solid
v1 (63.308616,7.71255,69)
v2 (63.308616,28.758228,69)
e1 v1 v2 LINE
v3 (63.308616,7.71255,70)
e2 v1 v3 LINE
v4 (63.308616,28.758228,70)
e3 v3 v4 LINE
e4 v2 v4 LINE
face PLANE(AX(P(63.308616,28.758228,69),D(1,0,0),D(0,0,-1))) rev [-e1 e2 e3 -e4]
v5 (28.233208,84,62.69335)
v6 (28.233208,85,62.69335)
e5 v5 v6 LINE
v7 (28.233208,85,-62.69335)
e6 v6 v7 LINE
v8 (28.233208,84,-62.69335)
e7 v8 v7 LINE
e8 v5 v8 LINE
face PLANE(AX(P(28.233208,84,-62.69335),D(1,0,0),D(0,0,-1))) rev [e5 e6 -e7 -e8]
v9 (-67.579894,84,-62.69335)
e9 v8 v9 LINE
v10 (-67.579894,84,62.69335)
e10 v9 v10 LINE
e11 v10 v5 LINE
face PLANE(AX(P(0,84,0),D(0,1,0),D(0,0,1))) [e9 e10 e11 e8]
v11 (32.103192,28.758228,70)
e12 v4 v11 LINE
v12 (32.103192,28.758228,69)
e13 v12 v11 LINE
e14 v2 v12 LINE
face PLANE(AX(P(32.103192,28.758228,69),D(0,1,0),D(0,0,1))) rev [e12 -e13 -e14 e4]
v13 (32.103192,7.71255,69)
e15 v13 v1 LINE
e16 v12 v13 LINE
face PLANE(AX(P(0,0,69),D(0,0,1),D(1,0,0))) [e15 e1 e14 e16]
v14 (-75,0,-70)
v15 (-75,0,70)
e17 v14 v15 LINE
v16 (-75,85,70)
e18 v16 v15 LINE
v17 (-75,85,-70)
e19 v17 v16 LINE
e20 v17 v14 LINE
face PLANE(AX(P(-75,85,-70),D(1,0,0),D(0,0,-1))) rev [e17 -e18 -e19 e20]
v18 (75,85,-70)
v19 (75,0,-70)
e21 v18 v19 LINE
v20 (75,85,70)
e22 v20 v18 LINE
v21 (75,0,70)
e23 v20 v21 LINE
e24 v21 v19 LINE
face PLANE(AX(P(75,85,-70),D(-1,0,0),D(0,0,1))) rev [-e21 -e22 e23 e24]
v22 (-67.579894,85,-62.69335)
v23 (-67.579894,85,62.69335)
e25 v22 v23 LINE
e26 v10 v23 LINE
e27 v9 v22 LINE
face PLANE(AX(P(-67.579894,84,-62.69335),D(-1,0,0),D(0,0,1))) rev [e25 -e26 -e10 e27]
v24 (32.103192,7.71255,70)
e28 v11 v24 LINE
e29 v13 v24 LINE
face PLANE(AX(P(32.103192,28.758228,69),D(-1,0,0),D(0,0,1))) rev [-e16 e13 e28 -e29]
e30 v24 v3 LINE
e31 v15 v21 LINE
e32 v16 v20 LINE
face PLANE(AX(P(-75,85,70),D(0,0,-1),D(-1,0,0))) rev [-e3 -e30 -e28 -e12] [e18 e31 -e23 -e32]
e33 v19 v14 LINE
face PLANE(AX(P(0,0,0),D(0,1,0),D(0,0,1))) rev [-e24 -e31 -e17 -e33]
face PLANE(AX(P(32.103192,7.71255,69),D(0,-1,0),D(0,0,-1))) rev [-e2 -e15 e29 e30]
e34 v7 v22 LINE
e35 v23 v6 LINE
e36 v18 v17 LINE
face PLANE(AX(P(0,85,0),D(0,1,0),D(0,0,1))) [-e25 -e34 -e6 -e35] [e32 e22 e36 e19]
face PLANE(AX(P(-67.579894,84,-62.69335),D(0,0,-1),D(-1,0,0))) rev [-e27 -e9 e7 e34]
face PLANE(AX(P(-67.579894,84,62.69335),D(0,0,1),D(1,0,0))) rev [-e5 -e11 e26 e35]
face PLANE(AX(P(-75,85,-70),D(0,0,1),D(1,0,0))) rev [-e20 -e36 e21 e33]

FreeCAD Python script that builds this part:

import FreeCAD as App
import Part
import Sketcher
from FreeCAD import Vector
Q = App.Units.Quantity


def add_polygon(sketch, points):
    """Adds a closed chain of lines whose ends are joined by coincident constraints."""
    first, n = sketch.GeometryCount, len(points)
    for a, b in zip(points, points[1:] + points[:1]):
        sketch.addGeometry(Part.LineSegment(App.Vector(*a, 0), App.Vector(*b, 0)), False)
    for i in range(n):
        sketch.addConstraint(Sketcher.Constraint("Coincident", first + i, 2, first + (i + 1) % n, 1))

doc = App.newDocument("Part")
body = doc.addObject("PartDesign::Body", "Body")

sketch1 = body.newObject("Sketcher::SketchObject", "Sketch")
sketch1.AttachmentSupport = (doc.getObject("XZ_Plane"), [""])
sketch1.MapMode = "FlatFace"
add_polygon(sketch1, [(-75, -70), (-75, 70), (75, 70), (75, -70)])
sketch1.addConstraint([
    Sketcher.Constraint("Vertical", 0),
    Sketcher.Constraint("Horizontal", 1),
    Sketcher.Constraint("Vertical", 2),
    Sketcher.Constraint("Horizontal", 3),
    Sketcher.Constraint("Symmetric", 0, 2, 2, 2, -1, 1),
    Sketcher.Constraint("DistanceX", 1, 1, 1, 2, Q("150 mm")),
    Sketcher.Constraint("DistanceY", 0, 1, 0, 2, Q("140 mm")),
])
pad1 = body.newObject("PartDesign::Pad", "Pad")
pad1.Profile = sketch1
pad1.Length = 85
pad1.Reversed = True

sketch2 = body.newObject("Sketcher::SketchObject", "Sketch001")
sketch2.AttachmentSupport = (doc.getObject("XY_Plane"), [""])
sketch2.MapMode = "FlatFace"
sketch2.AttachmentOffset = App.Placement(Vector(0, 0, 70), App.Rotation())
add_polygon(sketch2, [(32, 29), (32, 8), (63, 8), (63, 29)])
sketch2.addConstraint([
    Sketcher.Constraint("Vertical", 0),
    Sketcher.Constraint("Horizontal", 1),
    Sketcher.Constraint("Vertical", 2),
    Sketcher.Constraint("Horizontal", 3),
    Sketcher.Constraint("DistanceY", 0, 2, 0, 1, Q("21.045679 mm")),
    Sketcher.Constraint("DistanceX", 1, 1, 1, 2, Q("31.205424 mm")),
    Sketcher.Constraint("DistanceX", -1, 1, 0, 2, Q("32.103192 mm")),
    Sketcher.Constraint("DistanceY", -1, 1, 0, 2, Q("7.71255 mm")),
])
pocket1 = body.newObject("PartDesign::Pocket", "Pocket")
pocket1.Profile = sketch2
pocket1.Length = 1

sketch3 = body.newObject("Sketcher::SketchObject", "Sketch002")
sketch3.AttachmentSupport = (doc.getObject("XZ_Plane"), [""])
sketch3.MapMode = "FlatFace"
sketch3.AttachmentOffset = App.Placement(Vector(0, 0, -85), App.Rotation())
add_polygon(sketch3, [(-68, -63), (-68, 63), (28, 63), (28, -63)])
sketch3.addConstraint([
    Sketcher.Constraint("Vertical", 0),
    Sketcher.Constraint("Horizontal", 1),
    Sketcher.Constraint("Vertical", 2),
    Sketcher.Constraint("Horizontal", 3),
    Sketcher.Constraint("DistanceX", 1, 1, 1, 2, Q("95.813102 mm")),
    Sketcher.Constraint("DistanceY", 0, 1, 0, 2, Q("125.386699 mm")),
    Sketcher.Constraint("DistanceY", -1, 1, 0, 2, Q("62.69335 mm")),
    Sketcher.Constraint("DistanceX", 0, 2, -1, 1, Q("67.579894 mm")),
])
pocket2 = body.newObject("PartDesign::Pocket", "Pocket001")
pocket2.Profile = sketch3
pocket2.Length = 1
pocket2.Reversed = True

doc.recompute()
